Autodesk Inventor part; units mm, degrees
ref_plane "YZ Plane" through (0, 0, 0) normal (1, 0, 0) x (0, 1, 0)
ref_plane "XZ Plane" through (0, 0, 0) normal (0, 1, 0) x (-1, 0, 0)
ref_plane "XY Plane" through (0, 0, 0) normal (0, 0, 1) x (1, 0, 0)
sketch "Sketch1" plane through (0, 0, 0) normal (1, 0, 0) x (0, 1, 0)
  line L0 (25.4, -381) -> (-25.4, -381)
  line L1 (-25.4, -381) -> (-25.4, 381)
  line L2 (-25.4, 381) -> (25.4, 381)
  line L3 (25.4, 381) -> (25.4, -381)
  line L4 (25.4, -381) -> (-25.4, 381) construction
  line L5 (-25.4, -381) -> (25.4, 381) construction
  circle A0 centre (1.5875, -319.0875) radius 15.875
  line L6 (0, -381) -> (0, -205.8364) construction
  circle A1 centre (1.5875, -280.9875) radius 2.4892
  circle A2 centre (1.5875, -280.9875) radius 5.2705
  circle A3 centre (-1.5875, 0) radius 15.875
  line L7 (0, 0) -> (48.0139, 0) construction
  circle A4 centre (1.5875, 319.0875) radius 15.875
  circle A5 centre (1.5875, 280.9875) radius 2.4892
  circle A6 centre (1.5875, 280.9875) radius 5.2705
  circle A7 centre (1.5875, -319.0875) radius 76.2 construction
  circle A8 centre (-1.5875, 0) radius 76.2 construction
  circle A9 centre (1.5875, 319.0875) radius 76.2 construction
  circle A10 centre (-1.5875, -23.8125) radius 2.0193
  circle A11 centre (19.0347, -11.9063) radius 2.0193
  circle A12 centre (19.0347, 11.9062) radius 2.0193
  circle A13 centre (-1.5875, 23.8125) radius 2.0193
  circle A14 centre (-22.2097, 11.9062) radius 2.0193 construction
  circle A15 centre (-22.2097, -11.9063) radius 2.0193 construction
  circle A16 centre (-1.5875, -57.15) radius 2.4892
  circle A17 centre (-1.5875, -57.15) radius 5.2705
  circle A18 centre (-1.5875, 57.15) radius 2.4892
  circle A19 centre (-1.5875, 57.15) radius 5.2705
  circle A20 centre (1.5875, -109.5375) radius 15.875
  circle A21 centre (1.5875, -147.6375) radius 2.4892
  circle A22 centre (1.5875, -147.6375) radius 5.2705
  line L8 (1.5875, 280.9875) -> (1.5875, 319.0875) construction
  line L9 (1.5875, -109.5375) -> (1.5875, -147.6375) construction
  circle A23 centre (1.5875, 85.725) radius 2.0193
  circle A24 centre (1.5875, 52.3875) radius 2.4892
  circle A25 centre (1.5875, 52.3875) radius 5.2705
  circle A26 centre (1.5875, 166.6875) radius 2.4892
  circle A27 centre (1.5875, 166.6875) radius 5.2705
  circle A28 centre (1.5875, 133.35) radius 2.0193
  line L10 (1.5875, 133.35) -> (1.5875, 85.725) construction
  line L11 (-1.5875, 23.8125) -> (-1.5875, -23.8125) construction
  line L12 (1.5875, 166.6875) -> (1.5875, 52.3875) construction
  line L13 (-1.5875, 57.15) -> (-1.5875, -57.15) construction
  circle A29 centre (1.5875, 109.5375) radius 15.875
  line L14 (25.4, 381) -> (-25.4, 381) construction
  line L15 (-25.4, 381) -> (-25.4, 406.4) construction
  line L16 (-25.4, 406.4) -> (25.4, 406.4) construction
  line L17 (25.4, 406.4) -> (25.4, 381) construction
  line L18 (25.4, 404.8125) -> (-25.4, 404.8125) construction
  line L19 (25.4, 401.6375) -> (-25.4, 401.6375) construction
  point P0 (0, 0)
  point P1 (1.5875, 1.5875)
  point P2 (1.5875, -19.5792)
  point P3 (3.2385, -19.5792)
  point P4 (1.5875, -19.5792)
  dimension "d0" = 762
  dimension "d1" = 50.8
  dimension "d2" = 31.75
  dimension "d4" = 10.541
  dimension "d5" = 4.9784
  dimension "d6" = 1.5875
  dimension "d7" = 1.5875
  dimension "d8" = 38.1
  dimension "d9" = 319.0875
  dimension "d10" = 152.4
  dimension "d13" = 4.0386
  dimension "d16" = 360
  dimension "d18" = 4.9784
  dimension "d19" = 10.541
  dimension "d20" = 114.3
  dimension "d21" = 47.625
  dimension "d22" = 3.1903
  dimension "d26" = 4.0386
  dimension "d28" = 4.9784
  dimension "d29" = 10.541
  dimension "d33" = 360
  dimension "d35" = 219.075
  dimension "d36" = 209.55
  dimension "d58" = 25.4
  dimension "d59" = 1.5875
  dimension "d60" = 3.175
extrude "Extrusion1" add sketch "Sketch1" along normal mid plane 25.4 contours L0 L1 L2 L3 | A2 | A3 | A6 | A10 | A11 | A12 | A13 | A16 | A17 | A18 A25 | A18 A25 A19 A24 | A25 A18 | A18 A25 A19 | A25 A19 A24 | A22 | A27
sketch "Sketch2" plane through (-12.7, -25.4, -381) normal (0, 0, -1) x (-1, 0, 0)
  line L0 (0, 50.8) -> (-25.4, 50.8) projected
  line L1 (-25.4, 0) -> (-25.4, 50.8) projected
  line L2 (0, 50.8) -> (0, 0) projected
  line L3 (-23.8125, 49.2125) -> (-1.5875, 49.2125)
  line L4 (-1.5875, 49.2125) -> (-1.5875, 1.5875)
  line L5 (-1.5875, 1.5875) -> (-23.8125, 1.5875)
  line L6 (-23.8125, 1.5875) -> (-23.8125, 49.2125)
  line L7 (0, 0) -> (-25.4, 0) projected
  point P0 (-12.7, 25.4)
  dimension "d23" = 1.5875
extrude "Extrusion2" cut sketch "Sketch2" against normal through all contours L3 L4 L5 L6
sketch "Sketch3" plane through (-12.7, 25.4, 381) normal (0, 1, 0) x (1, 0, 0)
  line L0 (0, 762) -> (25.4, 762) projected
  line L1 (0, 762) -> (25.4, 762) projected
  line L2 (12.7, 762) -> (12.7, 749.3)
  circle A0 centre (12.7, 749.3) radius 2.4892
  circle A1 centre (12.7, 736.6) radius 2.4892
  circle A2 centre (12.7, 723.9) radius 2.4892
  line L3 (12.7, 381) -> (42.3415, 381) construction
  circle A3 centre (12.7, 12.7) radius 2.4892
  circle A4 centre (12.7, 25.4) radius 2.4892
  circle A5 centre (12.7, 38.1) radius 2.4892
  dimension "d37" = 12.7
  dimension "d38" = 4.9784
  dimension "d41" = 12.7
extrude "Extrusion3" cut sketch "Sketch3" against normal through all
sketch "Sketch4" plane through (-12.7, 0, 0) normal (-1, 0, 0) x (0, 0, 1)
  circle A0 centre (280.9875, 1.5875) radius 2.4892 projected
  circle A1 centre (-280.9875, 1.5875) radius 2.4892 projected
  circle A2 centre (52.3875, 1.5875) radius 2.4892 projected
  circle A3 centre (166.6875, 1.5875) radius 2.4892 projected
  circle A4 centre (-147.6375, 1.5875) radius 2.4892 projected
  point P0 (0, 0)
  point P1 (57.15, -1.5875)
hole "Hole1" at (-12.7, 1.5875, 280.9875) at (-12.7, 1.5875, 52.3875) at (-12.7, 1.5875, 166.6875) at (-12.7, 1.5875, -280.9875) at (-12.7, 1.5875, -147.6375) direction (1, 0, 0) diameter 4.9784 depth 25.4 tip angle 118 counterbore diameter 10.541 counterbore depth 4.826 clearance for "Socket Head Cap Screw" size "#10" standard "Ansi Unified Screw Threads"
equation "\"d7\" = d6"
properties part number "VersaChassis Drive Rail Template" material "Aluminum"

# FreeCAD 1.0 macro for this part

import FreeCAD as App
import Part
import Sketcher
Q = App.Units.Quantity


def add_polygon(sketch, points):
    """Adds a closed chain of lines whose ends are joined by coincident constraints."""
    first, n = sketch.GeometryCount, len(points)
    for a, b in zip(points, points[1:] + points[:1]):
        sketch.addGeometry(Part.LineSegment(App.Vector(*a, 0), App.Vector(*b, 0)), False)
    for i in range(n):
        sketch.addConstraint(Sketcher.Constraint("Coincident", first + i, 2, first + (i + 1) % n, 1))

doc = App.newDocument("Part")
body = doc.addObject("PartDesign::Body", "Body")

# Sketch on YZ plane
sketch1 = body.newObject("Sketcher::SketchObject", "Sketch")
sketch1.AttachmentSupport = (doc.getObject("YZ_Plane"), [""])
sketch1.MapMode = "FlatFace"
add_polygon(sketch1, [(-25.4, -381), (25.4, -381), (25.4, 381), (-25.4, 381)])  # lines 0-3
sketch1.addGeometry(Part.Circle(App.Vector(1.6, -319.1, 0), App.Vector(0, 0, 1), 15.9), False)  # 4
sketch1.addGeometry(Part.Circle(App.Vector(1.6, -109.5, 0), App.Vector(0, 0, 1), 15.9), False)  # 5
sketch1.addGeometry(Part.Circle(App.Vector(1.6, 85.7, 0), App.Vector(0, 0, 1), 2), False)  # 6
sketch1.addGeometry(Part.Circle(App.Vector(1.6, 109.5, 0), App.Vector(0, 0, 1), 15.9), False)  # 7
sketch1.addGeometry(Part.Circle(App.Vector(1.6, 133.3, 0), App.Vector(0, 0, 1), 2), False)  # 8
sketch1.addGeometry(Part.Circle(App.Vector(1.6, 319.1, 0), App.Vector(0, 0, 1), 15.9), False)  # 9
sketch1.addGeometry(Part.Circle(App.Vector(1.6, -281, 0), App.Vector(0, 0, 1), 2.5), False)  # 10
sketch1.addGeometry(Part.Circle(App.Vector(1.6, -147.6, 0), App.Vector(0, 0, 1), 2.5), False)  # 11
sketch1.addGeometry(Part.Circle(App.Vector(1.6, 52.4, 0), App.Vector(0, 0, 1), 2.5), False)  # 12
sketch1.addGeometry(Part.Circle(App.Vector(1.6, 166.7, 0), App.Vector(0, 0, 1), 2.5), False)  # 13
sketch1.addGeometry(Part.Circle(App.Vector(1.6, 281, 0), App.Vector(0, 0, 1), 2.5), False)  # 14
sketch1.addConstraint([
    Sketcher.Constraint("Horizontal", 0),
    Sketcher.Constraint("Vertical", 1),
    Sketcher.Constraint("Horizontal", 2),
    Sketcher.Constraint("Vertical", 3),
    Sketcher.Constraint("Equal", 4, 5),
    Sketcher.Constraint("Equal", 5, 7),
    Sketcher.Constraint("Equal", 6, 8),
    Sketcher.Constraint("Equal", 7, 9),
    Sketcher.Constraint("Equal", 10, 11),
    Sketcher.Constraint("Equal", 11, 12),
    Sketcher.Constraint("Equal", 12, 13),
    Sketcher.Constraint("Equal", 13, 14),
    Sketcher.Constraint("Symmetric", 0, 2, 2, 2, -1, 1),
    Sketcher.Constraint("Symmetric", 5, 3, 7, 3, -1),
    Sketcher.Constraint("Symmetric", 4, 3, 9, 3, -1),
    Sketcher.Constraint("Symmetric", 10, 3, 14, 3, -1),
    Sketcher.Constraint("Vertical", 4, 3, 5, 3),
    Sketcher.Constraint("Vertical", 5, 3, 6, 3),
    Sketcher.Constraint("Vertical", 7, 3, 8, 3),
    Sketcher.Constraint("Vertical", 9, 3, 10, 3),
    Sketcher.Constraint("Vertical", 10, 3, 11, 3),
    Sketcher.Constraint("Vertical", 11, 3, 12, 3),
    Sketcher.Constraint("Vertical", 12, 3, 13, 3),
    Sketcher.Constraint("Diameter", 4, Q("1.25 in")),
    Sketcher.Constraint("DistanceX", 0, 1, 0, 2, Q("2 in")),
    Sketcher.Constraint("DistanceY", 1, 1, 1, 2, Q("30 in")),
    Sketcher.Constraint("Diameter", 6, Q("0.159 in")),
    Sketcher.Constraint("Diameter", 10, Q("0.196 in")),
    Sketcher.Constraint("DistanceY", 13, 3, 9, 3, Q("6 in")),
    Sketcher.Constraint("DistanceY", 4, 3, 10, 3, Q("1.5 in")),
    Sketcher.Constraint("DistanceY", 11, 3, 5, 3, Q("1.5 in")),
    Sketcher.Constraint("DistanceY", 12, 3, 13, 3, Q("4.5 in")),
    Sketcher.Constraint("DistanceY", 4, 3, 5, 3, Q("8.25 in")),
    Sketcher.Constraint("DistanceX", -1, 1, 4, 3, Q("0.0625 in")),
    Sketcher.Constraint("DistanceY", 4, 3, -1, 1, Q("12.5625 in")),
    Sketcher.Constraint("DistanceY", 6, 3, 8, 3, Q("1.875 in")),
    Sketcher.Constraint("DistanceY", -1, 1, 8, 3, Q("5.25 in")),
])
pad1 = body.newObject("PartDesign::Pad", "Pad")
pad1.Profile = sketch1
pad1.Length = Q("1 in")
pad1.Midplane = True

# Sketch on XY plane
sketch2 = body.newObject("Sketcher::SketchObject", "Sketch001")
sketch2.AttachmentSupport = (doc.getObject("XY_Plane"), [""])
sketch2.MapMode = "FlatFace"
sketch2.AttachmentOffset = App.Placement(App.Vector(0, 0, -15 * 25.4), App.Rotation())
add_polygon(sketch2, [(-11, 24), (11, 24), (11, -24), (-11, -24)])  # lines 0-3
sketch2.addConstraint([
    Sketcher.Constraint("Horizontal", 0),
    Sketcher.Constraint("Vertical", 1),
    Sketcher.Constraint("Horizontal", 2),
    Sketcher.Constraint("Vertical", 3),
    Sketcher.Constraint("Symmetric", 0, 2, 2, 2, -1, 1),
    Sketcher.Constraint("DistanceX", 0, 1, 0, 2, Q("0.875 in")),
    Sketcher.Constraint("DistanceY", 1, 2, 1, 1, Q("1.875 in")),
])
pocket1 = body.newObject("PartDesign::Pocket", "Pocket")
pocket1.Profile = sketch2
pocket1.Type = "ThroughAll"
pocket1.Reversed = True

# Sketch on XZ plane
sketch3 = body.newObject("Sketcher::SketchObject", "Sketch002")
sketch3.AttachmentSupport = (doc.getObject("XZ_Plane"), [""])
sketch3.MapMode = "FlatFace"
sketch3.AttachmentOffset = App.Placement(App.Vector(0, 0, -1 * 25.4), App.Rotation())
sketch3.addGeometry([
    Part.Circle(App.Vector(0, -368.3, 0), App.Vector(0, 0, 1), 2.5),  # 0
    Part.Circle(App.Vector(0, -355.6, 0), App.Vector(0, 0, 1), 2.5),  # 1
    Part.Circle(App.Vector(0, -342.9, 0), App.Vector(0, 0, 1), 2.5),  # 2
    Part.Circle(App.Vector(0, 368.3, 0), App.Vector(0, 0, 1), 2.5),  # 3
    Part.Circle(App.Vector(0, 355.6, 0), App.Vector(0, 0, 1), 2.5),  # 4
    Part.Circle(App.Vector(0, 342.9, 0), App.Vector(0, 0, 1), 2.5),  # 5
], False)
sketch3.addConstraint([
    Sketcher.Constraint("Equal", 0, 1),
    Sketcher.Constraint("Equal", 1, 2),
    Sketcher.Constraint("Equal", 2, 3),
    Sketcher.Constraint("Equal", 3, 4),
    Sketcher.Constraint("Equal", 4, 5),
    Sketcher.Constraint("Symmetric", 0, 3, 3, 3, -1, 1),
    Sketcher.Constraint("Symmetric", 1, 3, 4, 3, -1, 1),
    Sketcher.Constraint("Symmetric", 2, 3, 5, 3, -1, 1),
    Sketcher.Constraint("PointOnObject", 0, 3, -2),
    Sketcher.Constraint("PointOnObject", 1, 3, -2),
    Sketcher.Constraint("PointOnObject", 2, 3, -2),
    Sketcher.Constraint("Diameter", 0, Q("0.196 in")),
    Sketcher.Constraint("DistanceY", 0, 3, 2, 3, Q("1 in")),
    Sketcher.Constraint("DistanceY", 0, 3, 1, 3, Q("0.5 in")),
    Sketcher.Constraint("DistanceY", 1, 3, -1, 1, Q("14 in")),
])
pocket2 = body.newObject("PartDesign::Pocket", "Pocket001")
pocket2.Profile = sketch3
pocket2.Type = "ThroughAll"
pocket2.Reversed = True

# Sketch on YZ plane
sketch4 = body.newObject("Sketcher::SketchObject", "Sketch003")
sketch4.AttachmentSupport = (doc.getObject("YZ_Plane"), [""])
sketch4.MapMode = "FlatFace"
sketch4.AttachmentOffset = App.Placement(App.Vector(0, 0, -0.5 * 25.4), App.Rotation())
sketch4.addGeometry([
    Part.Circle(App.Vector(1.6, 281, 0), App.Vector(0, 0, 1), 2.5),  # 0
    Part.Circle(App.Vector(1.6, 52.4, 0), App.Vector(0, 0, 1), 2.5),  # 1
    Part.Circle(App.Vector(1.6, 166.7, 0), App.Vector(0, 0, 1), 2.5),  # 2
    Part.Circle(App.Vector(1.6, -281, 0), App.Vector(0, 0, 1), 2.5),  # 3
    Part.Circle(App.Vector(1.6, -147.6, 0), App.Vector(0, 0, 1), 2.5),  # 4
], False)
sketch4.addConstraint([
    Sketcher.Constraint("Equal", 0, 1),
    Sketcher.Constraint("Equal", 1, 2),
    Sketcher.Constraint("Equal", 2, 3),
    Sketcher.Constraint("Equal", 3, 4),
    Sketcher.Constraint("Symmetric", 0, 3, 3, 3, -1),
    Sketcher.Constraint("Vertical", 0, 3, 1, 3),
    Sketcher.Constraint("Vertical", 1, 3, 2, 3),
    Sketcher.Constraint("Vertical", 3, 3, 4, 3),
    Sketcher.Constraint("Diameter", 0, Q("0.196 in")),
    Sketcher.Constraint("DistanceY", 1, 3, 0, 3, Q("9 in")),
    Sketcher.Constraint("DistanceY", 1, 3, 2, 3, Q("4.5 in")),
    Sketcher.Constraint("DistanceY", 3, 3, 4, 3, Q("5.25 in")),
    Sketcher.Constraint("DistanceX", -1, 1, 0, 3, Q("0.0625 in")),
    Sketcher.Constraint("DistanceY", -1, 1, 0, 3, Q("11.0625 in")),
])
doc.recompute()
hole = body.newObject("PartDesign::Hole", "Hole")
hole.Profile = sketch4
hole.ThreadType = "None"
hole.Diameter = Q("0.196 in")
hole.DepthType = "Dimension"
hole.Depth = Q("1 in")
hole.DrillPoint = "Angled"
hole.DrillPointAngle = 118
hole.HoleCutType = "Counterbore"
hole.HoleCutDiameter = Q("0.415 in")
hole.HoleCutDepth = Q("0.19 in")
hole.Reversed = True

doc.recompute()
